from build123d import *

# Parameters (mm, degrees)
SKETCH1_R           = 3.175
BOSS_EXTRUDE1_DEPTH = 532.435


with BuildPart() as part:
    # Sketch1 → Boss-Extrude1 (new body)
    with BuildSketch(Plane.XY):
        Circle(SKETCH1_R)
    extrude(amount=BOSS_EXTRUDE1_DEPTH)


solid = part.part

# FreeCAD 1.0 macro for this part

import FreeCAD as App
import Part
import Sketcher

V = App.Vector
Q = App.Units.Quantity

doc = App.newDocument("Part")
body = doc.addObject("PartDesign::Body", "Body")

sketch1 = body.newObject("Sketcher::SketchObject", "Sketch")
sketch1.AttachmentSupport = (doc.getObject("XY_Plane"), [""])
sketch1.MapMode = "FlatFace"
sketch1.addGeometry(Part.Circle(V(0, 0, 0), V(0, 0, 1), 3.175), False)
sketch1.addConstraint([
    Sketcher.Constraint("Coincident", 0, 3, -1, 1),
    Sketcher.Constraint("Diameter", 0, Q("0.25 in")),
])
pad1 = body.newObject("PartDesign::Pad", "Pad")
pad1.Profile = sketch1
pad1.Length = 532.435

doc.recompute()
